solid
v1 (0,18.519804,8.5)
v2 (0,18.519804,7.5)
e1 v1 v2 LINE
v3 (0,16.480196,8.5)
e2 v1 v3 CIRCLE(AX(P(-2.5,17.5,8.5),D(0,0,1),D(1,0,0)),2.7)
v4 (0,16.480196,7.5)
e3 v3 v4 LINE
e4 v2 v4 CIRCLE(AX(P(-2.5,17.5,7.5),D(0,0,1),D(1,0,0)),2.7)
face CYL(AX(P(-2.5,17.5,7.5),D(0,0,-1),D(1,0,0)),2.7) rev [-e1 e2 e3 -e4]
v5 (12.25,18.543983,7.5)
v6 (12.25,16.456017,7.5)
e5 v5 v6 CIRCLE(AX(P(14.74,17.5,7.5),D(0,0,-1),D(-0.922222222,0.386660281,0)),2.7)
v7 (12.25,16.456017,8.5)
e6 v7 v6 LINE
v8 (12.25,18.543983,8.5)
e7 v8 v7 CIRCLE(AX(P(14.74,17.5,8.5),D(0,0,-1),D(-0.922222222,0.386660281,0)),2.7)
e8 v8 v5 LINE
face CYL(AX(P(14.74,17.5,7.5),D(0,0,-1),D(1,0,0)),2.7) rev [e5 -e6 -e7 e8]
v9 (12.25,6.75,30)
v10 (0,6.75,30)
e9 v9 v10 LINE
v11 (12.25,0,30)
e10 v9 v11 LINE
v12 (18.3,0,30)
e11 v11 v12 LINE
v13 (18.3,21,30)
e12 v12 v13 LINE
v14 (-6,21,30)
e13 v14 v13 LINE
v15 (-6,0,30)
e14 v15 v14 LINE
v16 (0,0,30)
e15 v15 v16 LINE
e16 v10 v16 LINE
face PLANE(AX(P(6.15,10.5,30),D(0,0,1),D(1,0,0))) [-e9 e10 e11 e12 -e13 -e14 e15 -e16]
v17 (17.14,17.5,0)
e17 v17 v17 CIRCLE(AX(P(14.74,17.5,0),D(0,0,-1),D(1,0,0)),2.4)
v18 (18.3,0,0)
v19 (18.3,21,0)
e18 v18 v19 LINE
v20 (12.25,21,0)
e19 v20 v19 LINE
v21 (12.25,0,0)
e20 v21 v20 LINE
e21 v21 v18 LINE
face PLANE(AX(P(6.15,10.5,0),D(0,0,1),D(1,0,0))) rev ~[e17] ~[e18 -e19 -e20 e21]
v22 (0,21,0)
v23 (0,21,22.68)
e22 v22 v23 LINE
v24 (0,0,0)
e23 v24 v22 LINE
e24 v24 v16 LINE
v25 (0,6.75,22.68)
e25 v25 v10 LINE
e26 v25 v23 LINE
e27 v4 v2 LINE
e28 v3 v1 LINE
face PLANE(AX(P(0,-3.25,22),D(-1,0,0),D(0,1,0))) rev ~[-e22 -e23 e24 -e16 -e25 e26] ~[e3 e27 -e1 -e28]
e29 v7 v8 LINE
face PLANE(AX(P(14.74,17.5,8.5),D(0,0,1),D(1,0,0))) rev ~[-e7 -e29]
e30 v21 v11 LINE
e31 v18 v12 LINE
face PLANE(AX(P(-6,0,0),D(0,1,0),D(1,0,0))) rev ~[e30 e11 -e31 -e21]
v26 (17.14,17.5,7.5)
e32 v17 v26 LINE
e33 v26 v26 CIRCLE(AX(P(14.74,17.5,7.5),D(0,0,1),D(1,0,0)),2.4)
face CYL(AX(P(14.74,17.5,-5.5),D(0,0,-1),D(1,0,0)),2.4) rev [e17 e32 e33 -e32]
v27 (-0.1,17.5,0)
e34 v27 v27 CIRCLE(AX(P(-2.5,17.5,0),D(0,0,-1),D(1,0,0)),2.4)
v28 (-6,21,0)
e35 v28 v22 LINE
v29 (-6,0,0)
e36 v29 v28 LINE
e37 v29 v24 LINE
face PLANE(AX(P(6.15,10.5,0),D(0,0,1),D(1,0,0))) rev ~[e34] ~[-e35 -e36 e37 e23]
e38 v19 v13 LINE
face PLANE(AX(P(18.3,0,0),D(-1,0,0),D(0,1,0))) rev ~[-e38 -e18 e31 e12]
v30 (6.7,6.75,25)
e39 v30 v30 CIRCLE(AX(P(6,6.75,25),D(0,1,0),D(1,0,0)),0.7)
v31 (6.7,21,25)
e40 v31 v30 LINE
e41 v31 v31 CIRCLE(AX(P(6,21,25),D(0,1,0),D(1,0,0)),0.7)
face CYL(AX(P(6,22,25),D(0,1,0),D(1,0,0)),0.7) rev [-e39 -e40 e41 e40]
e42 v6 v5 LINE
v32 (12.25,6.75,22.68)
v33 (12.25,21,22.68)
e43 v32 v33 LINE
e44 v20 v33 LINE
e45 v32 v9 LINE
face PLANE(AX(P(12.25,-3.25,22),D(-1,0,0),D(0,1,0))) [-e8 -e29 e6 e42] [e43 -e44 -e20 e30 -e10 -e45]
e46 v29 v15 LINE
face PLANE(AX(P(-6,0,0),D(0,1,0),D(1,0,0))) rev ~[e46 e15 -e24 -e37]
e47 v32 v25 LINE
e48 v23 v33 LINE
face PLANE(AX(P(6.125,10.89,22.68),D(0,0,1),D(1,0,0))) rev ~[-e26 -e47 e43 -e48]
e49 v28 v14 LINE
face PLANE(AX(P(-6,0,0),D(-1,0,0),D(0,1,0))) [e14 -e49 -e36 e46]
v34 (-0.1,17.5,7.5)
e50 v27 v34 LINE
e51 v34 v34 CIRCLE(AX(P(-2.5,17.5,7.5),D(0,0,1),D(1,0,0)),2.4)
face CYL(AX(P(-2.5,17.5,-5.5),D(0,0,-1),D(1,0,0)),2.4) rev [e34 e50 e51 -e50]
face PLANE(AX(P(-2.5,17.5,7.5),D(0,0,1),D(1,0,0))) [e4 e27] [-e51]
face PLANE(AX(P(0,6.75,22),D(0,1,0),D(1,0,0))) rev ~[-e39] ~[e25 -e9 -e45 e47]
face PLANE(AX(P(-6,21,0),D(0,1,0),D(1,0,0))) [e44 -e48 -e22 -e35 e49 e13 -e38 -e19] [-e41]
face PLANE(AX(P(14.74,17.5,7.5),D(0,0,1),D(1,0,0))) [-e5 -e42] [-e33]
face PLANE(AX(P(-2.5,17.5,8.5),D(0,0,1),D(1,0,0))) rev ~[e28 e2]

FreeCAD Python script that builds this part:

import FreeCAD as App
import Part
import Sketcher
from FreeCAD import Vector
Q = App.Units.Quantity

doc = App.newDocument("Part")
body = doc.addObject("PartDesign::Body", "Body")

# Sketch on XY plane
sketch1 = doc.addObject("Sketcher::SketchObject", "Sketch")
body.addObject(sketch1)
sketch1.AttachmentSupport = (doc.XY_Plane, [""])
sketch1.MapMode = "FlatFace"
sketch1.AttachmentOffset = App.Placement(Vector(0, 0, -6.5), App.Rotation())
sketch1.addGeometry(Part.Circle(Vector(14.7, 17.5, 0), Vector(0, 0, 1), 2.4), False)
sketch1.addConstraint([
    Sketcher.Constraint("Diameter", 0, Q("4.8 mm")),
    Sketcher.Constraint("DistanceY", -1, 1, 0, 3, Q("17.5 mm")),
    Sketcher.Constraint("DistanceX", -1, 1, 0, 3, Q("14.74 mm")),
])
pad1 = doc.addObject("PartDesign::Pad", "Pad")
body.addObject(pad1)
pad1.Profile = sketch1
pad1.Length = 13
body2 = doc.addObject("PartDesign::Body", "Body001")

# Sketch on XY plane
sketch2 = doc.addObject("Sketcher::SketchObject", "Sketch001")
body2.addObject(sketch2)
sketch2.AttachmentSupport = (doc.getObject("XY_Plane001"), [""])
sketch2.MapMode = "FlatFace"
sketch2.AttachmentOffset = App.Placement(Vector(0, 0, 6.5), App.Rotation())
sketch2.addGeometry(Part.Circle(Vector(-2.5, 17.5, 0), Vector(0, 0, 1), 2.7), False)
sketch2.addConstraint([
    Sketcher.Constraint("Diameter", 0, Q("5.4 mm")),
    Sketcher.Constraint("DistanceX", 0, 3, -1, 1, Q("2.5 mm")),
    Sketcher.Constraint("DistanceY", -1, 1, 0, 3, Q("17.5 mm")),
])
pad2 = doc.addObject("PartDesign::Pad", "Pad001")
body2.addObject(pad2)
pad2.Profile = sketch2
pad2.Length = 1
body3 = doc.addObject("PartDesign::Body", "Body002")

# Sketch on XY plane
sketch3 = doc.addObject("Sketcher::SketchObject", "Sketch002")
body3.addObject(sketch3)
sketch3.AttachmentSupport = (doc.getObject("XY_Plane002"), [""])
sketch3.MapMode = "FlatFace"
sketch3.AttachmentOffset = App.Placement(Vector(0, 0, 6.5), App.Rotation())
sketch3.addGeometry(Part.Circle(Vector(14.7, 17.5, 0), Vector(0, 0, 1), 2.7), False)
sketch3.addConstraint([
    Sketcher.Constraint("Diameter", 0, Q("5.4 mm")),
    Sketcher.Constraint("DistanceY", -1, 1, 0, 3, Q("17.5 mm")),
    Sketcher.Constraint("DistanceX", -1, 1, 0, 3, Q("14.74 mm")),
])
pad3 = doc.addObject("PartDesign::Pad", "Pad002")
body3.addObject(pad3)
pad3.Profile = sketch3
pad3.Length = 1
body4 = doc.addObject("PartDesign::Body", "Body003")
body4.AllowCompound = True

# Sketch on XY plane
sketch4 = doc.addObject("Sketcher::SketchObject", "Sketch003")
body4.addObject(sketch4)
sketch4.AttachmentSupport = (doc.getObject("XY_Plane003"), [""])
sketch4.MapMode = "FlatFace"
sketch4.AttachmentOffset = App.Placement(Vector(0, 0, -6.5), App.Rotation())
sketch4.addGeometry(Part.Circle(Vector(-2.5, 17.5, 0), Vector(0, 0, 1), 2.4), False)
sketch4.addConstraint([
    Sketcher.Constraint("Diameter", 0, Q("4.8 mm")),
    Sketcher.Constraint("DistanceX", 0, 3, -1, 1, Q("2.5 mm")),
    Sketcher.Constraint("DistanceY", -1, 1, 0, 3, Q("17.5 mm")),
])
pad4 = doc.addObject("PartDesign::Pad", "Pad003")
body4.addObject(pad4)
pad4.Profile = sketch4
pad4.Length = 13
doc.recompute()

boolean = doc.addObject("PartDesign::Boolean", "Boolean")
body4.addObject(boolean)
boolean.Type = "Fuse"
boolean.addObjects([body])
doc.recompute()

boolean2 = doc.addObject("PartDesign::Boolean", "Boolean001")
body4.addObject(boolean2)
boolean2.Type = "Fuse"
boolean2.addObjects([body2])
doc.recompute()

boolean3 = doc.addObject("PartDesign::Boolean", "Boolean002")
body4.addObject(boolean3)
boolean3.Type = "Fuse"
boolean3.addObjects([body3])
body5 = doc.addObject("PartDesign::Body", "Body004")
body5.AllowCompound = True
doc.recompute()

body4.Placement = App.Placement(Vector(0, 0, 1), App.Rotation(Vector(0, 0, 1), 0))
boolean4 = doc.addObject("PartDesign::Boolean", "Boolean003")
body5.addObject(boolean4)
boolean4.Type = "Fuse"
boolean4.addObjects([body4])
body6 = doc.addObject("PartDesign::Body", "Body005")

# Sketch on XZ plane
sketch5 = doc.addObject("Sketcher::SketchObject", "Sketch004")
body6.addObject(sketch5)
sketch5.AttachmentSupport = (doc.getObject("XZ_Plane005"), [""])
sketch5.MapMode = "FlatFace"
sketch5.AttachmentOffset = App.Placement(Vector(0, 0, -22), App.Rotation())
sketch5.addGeometry(Part.Circle(Vector(6, 25, 0), Vector(0, 0, 1), 0.7), False)
sketch5.addConstraint([
    Sketcher.Constraint("Diameter", 0, Q("1.4 mm")),
    Sketcher.Constraint("DistanceX", -1, 1, 0, 3, Q("6 mm")),
    Sketcher.Constraint("DistanceY", -1, 1, 0, 3, Q("25 mm")),
])
pad5 = doc.addObject("PartDesign::Pad", "Pad004")
body6.addObject(pad5)
pad5.Profile = sketch5
pad5.Length = 16
body7 = doc.addObject("PartDesign::Body", "Body006")

# Sketch on XY plane
sketch6 = doc.addObject("Sketcher::SketchObject", "Sketch005")
body7.addObject(sketch6)
sketch6.AttachmentSupport = (doc.getObject("XY_Plane006"), [""])
sketch6.MapMode = "FlatFace"
sketch6.AttachmentOffset = App.Placement(Vector(0, 0, 22), App.Rotation())
sketch6.addGeometry([
    Part.LineSegment(Vector(0, 7, 0), Vector(0, -3, 0)),
    Part.LineSegment(Vector(0, -3, 0), Vector(12, -3, 0)),
    Part.LineSegment(Vector(12, -3, 0), Vector(12, 7, 0)),
    Part.LineSegment(Vector(12, 7, 0), Vector(0, 7, 0)),
], False)
sketch6.addConstraint([
    Sketcher.Constraint("Coincident", 0, 2, 1, 1),
    Sketcher.Constraint("Coincident", 1, 2, 2, 1),
    Sketcher.Constraint("Coincident", 2, 2, 3, 1),
    Sketcher.Constraint("Coincident", 3, 2, 0, 1),
    Sketcher.Constraint("Vertical", 0),
    Sketcher.Constraint("Horizontal", 1),
    Sketcher.Constraint("Vertical", 2),
    Sketcher.Constraint("Horizontal", 3),
    Sketcher.Constraint("PointOnObject", 0, 2, -2),
    Sketcher.Constraint("DistanceY", 0, 2, 0, 1, Q("10 mm")),
    Sketcher.Constraint("DistanceX", 1, 1, 1, 2, Q("12.25 mm")),
    Sketcher.Constraint("DistanceY", 0, 2, -1, 1, Q("3.25 mm")),
])
pad6 = doc.addObject("PartDesign::Pad", "Pad005")
body7.addObject(pad6)
pad6.Profile = sketch6
pad6.Length = 10
body8 = doc.addObject("PartDesign::Body", "Body007")

# Sketch on XY plane
sketch7 = doc.addObject("Sketcher::SketchObject", "Sketch006")
body8.addObject(sketch7)
sketch7.AttachmentSupport = (doc.getObject("XY_Plane007"), [""])
sketch7.MapMode = "FlatFace"
sketch7.addGeometry([
    Part.LineSegment(Vector(0, 23, 0), Vector(0, -1, 0)),
    Part.LineSegment(Vector(0, -1, 0), Vector(12, -1, 0)),
    Part.LineSegment(Vector(12, -1, 0), Vector(12, 23, 0)),
    Part.LineSegment(Vector(12, 23, 0), Vector(0, 23, 0)),
], False)
sketch7.addConstraint([
    Sketcher.Constraint("Coincident", 0, 2, 1, 1),
    Sketcher.Constraint("Coincident", 1, 2, 2, 1),
    Sketcher.Constraint("Coincident", 2, 2, 3, 1),
    Sketcher.Constraint("Coincident", 3, 2, 0, 1),
    Sketcher.Constraint("Vertical", 0),
    Sketcher.Constraint("Horizontal", 1),
    Sketcher.Constraint("Vertical", 2),
    Sketcher.Constraint("Horizontal", 3),
    Sketcher.Constraint("PointOnObject", 0, 2, -2),
    Sketcher.Constraint("DistanceY", 0, 2, -1, 1, Q("1 mm")),
    Sketcher.Constraint("DistanceX", 1, 1, 1, 2, Q("12.25 mm")),
    Sketcher.Constraint("DistanceY", 0, 2, 0, 1, Q("23.78 mm")),
])
pad7 = doc.addObject("PartDesign::Pad", "Pad006")
body8.addObject(pad7)
pad7.Profile = sketch7
pad7.Length = 22.68
doc.recompute()

body9 = doc.addObject("PartDesign::Body", "Body008")
body9.BaseFeature = body7
boolean5 = doc.addObject("PartDesign::Boolean", "Boolean004")
body8.addObject(boolean5)
boolean5.Type = "Fuse"
boolean5.addObjects([body9])
doc.recompute()

boolean6 = doc.addObject("PartDesign::Boolean", "Boolean005")
body7.addObject(boolean6)
boolean6.Type = "Fuse"
boolean6.addObjects([body8])
body10 = doc.addObject("PartDesign::Body", "Body009")

# Sketch on XY plane
sketch8 = doc.addObject("Sketcher::SketchObject", "Sketch007")
body10.addObject(sketch8)
sketch8.AttachmentSupport = (doc.getObject("XY_Plane009"), [""])
sketch8.MapMode = "FlatFace"
sketch8.addGeometry([
    Part.LineSegment(Vector(-6, 21, 0), Vector(-6, 0, 0)),
    Part.LineSegment(Vector(-6, 0, 0), Vector(18, 0, 0)),
    Part.LineSegment(Vector(18, 0, 0), Vector(18, 21, 0)),
    Part.LineSegment(Vector(18, 21, 0), Vector(-6, 21, 0)),
], False)
sketch8.addConstraint([
    Sketcher.Constraint("Coincident", 0, 2, 1, 1),
    Sketcher.Constraint("Coincident", 1, 2, 2, 1),
    Sketcher.Constraint("Coincident", 2, 2, 3, 1),
    Sketcher.Constraint("Coincident", 3, 2, 0, 1),
    Sketcher.Constraint("Vertical", 0),
    Sketcher.Constraint("Horizontal", 1),
    Sketcher.Constraint("Vertical", 2),
    Sketcher.Constraint("Horizontal", 3),
    Sketcher.Constraint("PointOnObject", 0, 2, -1),
    Sketcher.Constraint("DistanceY", 0, 2, 0, 1, Q("21 mm")),
    Sketcher.Constraint("DistanceX", 1, 1, 1, 2, Q("24.3 mm")),
    Sketcher.Constraint("DistanceX", 0, 2, -1, 1, Q("6 mm")),
])
pad8 = doc.addObject("PartDesign::Pad", "Pad007")
body10.addObject(pad8)
pad8.Profile = sketch8
pad8.Length = 30
doc.recompute()

boolean7 = doc.addObject("PartDesign::Boolean", "Boolean006")
body10.addObject(boolean7)
boolean7.Type = "Cut"
boolean7.addObjects([body7])
doc.recompute()

boolean8 = doc.addObject("PartDesign::Boolean", "Boolean007")
body10.addObject(boolean8)
boolean8.Type = "Cut"
boolean8.addObjects([body6])
doc.recompute()

boolean9 = doc.addObject("PartDesign::Boolean", "Boolean008")
body10.addObject(boolean9)
boolean9.Type = "Cut"
boolean9.addObjects([body5])

doc.recompute()
